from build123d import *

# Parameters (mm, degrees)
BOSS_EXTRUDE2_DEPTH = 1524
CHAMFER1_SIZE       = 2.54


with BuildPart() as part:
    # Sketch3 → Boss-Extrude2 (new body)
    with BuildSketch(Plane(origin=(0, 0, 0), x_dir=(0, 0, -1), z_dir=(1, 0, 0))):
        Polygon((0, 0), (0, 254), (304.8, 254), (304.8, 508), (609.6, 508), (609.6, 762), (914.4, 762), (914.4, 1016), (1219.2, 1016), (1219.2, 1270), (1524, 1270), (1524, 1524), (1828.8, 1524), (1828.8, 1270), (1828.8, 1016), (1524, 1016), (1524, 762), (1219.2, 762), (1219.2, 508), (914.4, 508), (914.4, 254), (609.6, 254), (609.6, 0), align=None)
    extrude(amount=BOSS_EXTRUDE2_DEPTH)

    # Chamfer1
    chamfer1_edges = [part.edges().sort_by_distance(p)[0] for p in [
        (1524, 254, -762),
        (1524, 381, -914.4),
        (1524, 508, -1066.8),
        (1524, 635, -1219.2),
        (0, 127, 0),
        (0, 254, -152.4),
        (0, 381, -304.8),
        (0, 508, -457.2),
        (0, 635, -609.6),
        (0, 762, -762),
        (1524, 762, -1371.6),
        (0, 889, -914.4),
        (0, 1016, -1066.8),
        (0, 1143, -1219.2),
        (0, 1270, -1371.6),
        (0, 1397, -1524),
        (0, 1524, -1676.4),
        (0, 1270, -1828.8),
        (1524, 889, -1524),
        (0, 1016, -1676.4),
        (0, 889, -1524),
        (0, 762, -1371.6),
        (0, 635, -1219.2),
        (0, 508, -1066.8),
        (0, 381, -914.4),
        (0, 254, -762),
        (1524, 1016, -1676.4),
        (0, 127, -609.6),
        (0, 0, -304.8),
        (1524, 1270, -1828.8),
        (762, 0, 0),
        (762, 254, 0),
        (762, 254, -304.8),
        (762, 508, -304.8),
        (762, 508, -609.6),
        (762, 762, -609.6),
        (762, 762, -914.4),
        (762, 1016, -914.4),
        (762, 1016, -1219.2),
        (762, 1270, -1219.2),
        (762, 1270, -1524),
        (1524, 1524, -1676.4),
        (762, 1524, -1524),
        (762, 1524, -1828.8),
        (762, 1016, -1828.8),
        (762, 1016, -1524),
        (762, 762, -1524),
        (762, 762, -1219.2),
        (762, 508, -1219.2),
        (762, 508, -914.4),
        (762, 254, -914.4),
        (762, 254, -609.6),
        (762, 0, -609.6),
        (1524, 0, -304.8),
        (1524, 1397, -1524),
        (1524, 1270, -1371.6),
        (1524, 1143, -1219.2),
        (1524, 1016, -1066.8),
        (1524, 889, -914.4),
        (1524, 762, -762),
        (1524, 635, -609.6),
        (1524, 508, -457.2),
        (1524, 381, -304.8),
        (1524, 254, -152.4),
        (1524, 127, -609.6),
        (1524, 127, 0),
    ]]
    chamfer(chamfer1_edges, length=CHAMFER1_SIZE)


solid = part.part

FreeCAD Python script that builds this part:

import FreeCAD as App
import Part
import Sketcher
Q = App.Units.Quantity

doc = App.newDocument("Part")
body = doc.addObject("PartDesign::Body", "Body")

sketch1 = body.newObject("Sketcher::SketchObject", "Sketch")
sketch1.AttachmentSupport = (doc.getObject("YZ_Plane"), [""])
sketch1.MapMode = "FlatFace"
sketch1.addGeometry([
    Part.LineSegment(App.Vector(254, 0, 0), App.Vector(0, 0, 0)),
    Part.LineSegment(App.Vector(0, 0, 0), App.Vector(0, -610, 0)),
    Part.LineSegment(App.Vector(0, -610, 0), App.Vector(254, -610, 0)),
    Part.LineSegment(App.Vector(254, -610, 0), App.Vector(254, -914, 0)),
    Part.LineSegment(App.Vector(254, -914, 0), App.Vector(508, -914, 0)),
    Part.LineSegment(App.Vector(508, -914, 0), App.Vector(508, -1219, 0)),
    Part.LineSegment(App.Vector(508, -1219, 0), App.Vector(762, -1219, 0)),
    Part.LineSegment(App.Vector(762, -1219, 0), App.Vector(762, -1524, 0)),
    Part.LineSegment(App.Vector(762, -1524, 0), App.Vector(1016, -1524, 0)),
    Part.LineSegment(App.Vector(1016, -1524, 0), App.Vector(1016, -1829, 0)),
    Part.LineSegment(App.Vector(1016, -1829, 0), App.Vector(1524, -1829, 0)),
    Part.LineSegment(App.Vector(1524, -1829, 0), App.Vector(1524, -1524, 0)),
    Part.LineSegment(App.Vector(1524, -1524, 0), App.Vector(1270, -1524, 0)),
    Part.LineSegment(App.Vector(1270, -1524, 0), App.Vector(1270, -1219, 0)),
    Part.LineSegment(App.Vector(1270, -1219, 0), App.Vector(1016, -1219, 0)),
    Part.LineSegment(App.Vector(1016, -1219, 0), App.Vector(1016, -914, 0)),
    Part.LineSegment(App.Vector(1016, -914, 0), App.Vector(762, -914, 0)),
    Part.LineSegment(App.Vector(762, -914, 0), App.Vector(762, -610, 0)),
    Part.LineSegment(App.Vector(762, -610, 0), App.Vector(508, -610, 0)),
    Part.LineSegment(App.Vector(508, -610, 0), App.Vector(508, -305, 0)),
    Part.LineSegment(App.Vector(508, -305, 0), App.Vector(254, -305, 0)),
    Part.LineSegment(App.Vector(254, -305, 0), App.Vector(254, 0, 0)),
], False)
sketch1.addConstraint([
    Sketcher.Constraint("Coincident", 0, 2, 1, 1),
    Sketcher.Constraint("Coincident", 1, 2, 2, 1),
    Sketcher.Constraint("Coincident", 2, 2, 3, 1),
    Sketcher.Constraint("Coincident", 3, 2, 4, 1),
    Sketcher.Constraint("Coincident", 4, 2, 5, 1),
    Sketcher.Constraint("Coincident", 5, 2, 6, 1),
    Sketcher.Constraint("Coincident", 6, 2, 7, 1),
    Sketcher.Constraint("Coincident", 7, 2, 8, 1),
    Sketcher.Constraint("Coincident", 8, 2, 9, 1),
    Sketcher.Constraint("Coincident", 9, 2, 10, 1),
    Sketcher.Constraint("Coincident", 10, 2, 11, 1),
    Sketcher.Constraint("Coincident", 11, 2, 12, 1),
    Sketcher.Constraint("Coincident", 12, 2, 13, 1),
    Sketcher.Constraint("Coincident", 13, 2, 14, 1),
    Sketcher.Constraint("Coincident", 14, 2, 15, 1),
    Sketcher.Constraint("Coincident", 15, 2, 16, 1),
    Sketcher.Constraint("Coincident", 16, 2, 17, 1),
    Sketcher.Constraint("Coincident", 17, 2, 18, 1),
    Sketcher.Constraint("Coincident", 18, 2, 19, 1),
    Sketcher.Constraint("Coincident", 19, 2, 20, 1),
    Sketcher.Constraint("Coincident", 20, 2, 21, 1),
    Sketcher.Constraint("Coincident", 21, 2, 0, 1),
    Sketcher.Constraint("Horizontal", 0),
    Sketcher.Constraint("Vertical", 1),
    Sketcher.Constraint("Horizontal", 2),
    Sketcher.Constraint("Vertical", 3),
    Sketcher.Constraint("Horizontal", 4),
    Sketcher.Constraint("Vertical", 5),
    Sketcher.Constraint("Horizontal", 6),
    Sketcher.Constraint("Vertical", 7),
    Sketcher.Constraint("Horizontal", 8),
    Sketcher.Constraint("Vertical", 9),
    Sketcher.Constraint("Horizontal", 10),
    Sketcher.Constraint("Vertical", 11),
    Sketcher.Constraint("Horizontal", 12),
    Sketcher.Constraint("Vertical", 13),
    Sketcher.Constraint("Horizontal", 14),
    Sketcher.Constraint("Vertical", 15),
    Sketcher.Constraint("Horizontal", 16),
    Sketcher.Constraint("Vertical", 17),
    Sketcher.Constraint("Horizontal", 18),
    Sketcher.Constraint("Vertical", 19),
    Sketcher.Constraint("Horizontal", 20),
    Sketcher.Constraint("Vertical", 21),
    Sketcher.Constraint("Coincident", 0, 2, -1, 1),
    Sketcher.Constraint("Horizontal", 8, 2, 11, 2),
    Sketcher.Constraint("Horizontal", 6, 2, 13, 2),
    Sketcher.Constraint("Horizontal", 4, 2, 15, 2),
    Sketcher.Constraint("Horizontal", 2, 2, 17, 2),
    Sketcher.Constraint("Vertical", 9, 2, 14, 2),
    Sketcher.Constraint("Vertical", 7, 2, 16, 2),
    Sketcher.Constraint("Vertical", 5, 2, 18, 2),
    Sketcher.Constraint("Vertical", 3, 2, 20, 2),
    Sketcher.Constraint("Equal", 2, 4),
    Sketcher.Constraint("Equal", 4, 6),
    Sketcher.Constraint("Equal", 6, 8),
    Sketcher.Constraint("Equal", 8, 12),
    Sketcher.Constraint("Equal", 12, 14),
    Sketcher.Constraint("Equal", 3, 5),
    Sketcher.Constraint("Equal", 5, 7),
    Sketcher.Constraint("Equal", 7, 9),
    Sketcher.Constraint("Equal", 17, 19),
    Sketcher.Constraint("Equal", 19, 21),
    Sketcher.Constraint("DistanceX", 0, 2, 0, 1, Q("10 in")),
    Sketcher.Constraint("DistanceY", 1, 2, 1, 1, Q("24 in")),
])
pad1 = body.newObject("PartDesign::Pad", "Pad")
pad1.Profile = sketch1
pad1.Length = Q("60 in")
doc.recompute()

chamfer = body.newObject("PartDesign::Chamfer", "Chamfer")
chamfer.Base = (pad1, ["Edge1"])
chamfer.UseAllEdges = True
chamfer.Size = Q("0.1 in")

doc.recompute()
